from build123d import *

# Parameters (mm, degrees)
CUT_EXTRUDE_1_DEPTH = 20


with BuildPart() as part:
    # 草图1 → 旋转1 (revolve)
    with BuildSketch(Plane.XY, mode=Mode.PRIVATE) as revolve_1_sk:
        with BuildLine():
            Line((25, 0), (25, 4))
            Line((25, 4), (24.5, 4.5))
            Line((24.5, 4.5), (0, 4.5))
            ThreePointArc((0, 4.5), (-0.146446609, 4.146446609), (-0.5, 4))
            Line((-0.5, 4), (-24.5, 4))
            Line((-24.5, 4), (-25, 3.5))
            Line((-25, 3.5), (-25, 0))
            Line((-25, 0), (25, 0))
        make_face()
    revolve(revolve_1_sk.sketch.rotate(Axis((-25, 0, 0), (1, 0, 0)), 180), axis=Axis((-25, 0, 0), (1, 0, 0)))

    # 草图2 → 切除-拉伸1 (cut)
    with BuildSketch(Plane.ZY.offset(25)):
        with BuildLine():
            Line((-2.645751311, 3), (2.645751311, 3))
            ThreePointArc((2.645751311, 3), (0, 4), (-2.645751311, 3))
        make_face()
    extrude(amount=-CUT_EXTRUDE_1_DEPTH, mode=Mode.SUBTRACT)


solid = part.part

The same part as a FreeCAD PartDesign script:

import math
import FreeCAD as App
import Part
import Sketcher
Q = App.Units.Quantity

doc = App.newDocument("Part")
params = doc.addObject("Spreadsheet::Sheet", "Params")
for row, (alias, value) in enumerate([
    ("sketch1_radius", "0.5 mm"),
    ("sketch1_width", "24 mm"),
    ("sketch1_height", "4 mm"),
    ("revolution_angle", "360 deg"),
    ("sketch2_radius", "4 mm"),
    ("pocket1_length", "20 mm"),
], start=1):
    params.set(f"A{row}", alias)
    params.set(f"B{row}", "=" + value)
    params.setAlias(f"B{row}", alias)

body = doc.addObject("PartDesign::Body", "Body")

# Sketch on XY plane
sketch1 = body.newObject("Sketcher::SketchObject", "Sketch")
sketch1.AttachmentSupport = (doc.getObject("XY_Plane"), [""])
sketch1.MapMode = "FlatFace"
sketch1.addGeometry([
    Part.LineSegment(App.Vector(25, 0, 0), App.Vector(25, 4, 0)),  # 0
    Part.LineSegment(App.Vector(25, 4, 0), App.Vector(24.5, 4.5, 0)),  # 1
    Part.LineSegment(App.Vector(24.5, 4.5, 0), App.Vector(0, 4.5, 0)),  # 2
    Part.ArcOfCircle(Part.Circle(App.Vector(-0.5, 4.5, 0), App.Vector(0, 0, 1), 0.5), math.radians(-90), math.radians(0)),  # 3
    Part.LineSegment(App.Vector(-0.5, 4, 0), App.Vector(-24.5, 4, 0)),  # 4
    Part.LineSegment(App.Vector(-24.5, 4, 0), App.Vector(-25, 3.5, 0)),  # 5
    Part.LineSegment(App.Vector(-25, 3.5, 0), App.Vector(-25, 0, 0)),  # 6
    Part.LineSegment(App.Vector(-25, 0, 0), App.Vector(25, 0, 0)),  # 7
], False)
sketch1.addConstraint([
    Sketcher.Constraint("Coincident", 0, 2, 1, 1),
    Sketcher.Constraint("Coincident", 1, 2, 2, 1),
    Sketcher.Constraint("Coincident", 2, 2, 3, 2),
    Sketcher.Constraint("Tangent", 3, 1, 4, 1),
    Sketcher.Constraint("Coincident", 4, 2, 5, 1),
    Sketcher.Constraint("Coincident", 5, 2, 6, 1),
    Sketcher.Constraint("Coincident", 6, 2, 7, 1),
    Sketcher.Constraint("Coincident", 7, 2, 0, 1),
    Sketcher.Constraint("Vertical", 0),
    Sketcher.Constraint("Horizontal", 2),
    Sketcher.Constraint("Horizontal", 4),
    Sketcher.Constraint("Vertical", 6),
    Sketcher.Constraint("Horizontal", 7),
    Sketcher.Constraint("Symmetric", 6, 2, 7, 2, -1, 1),
    Sketcher.Constraint("PointOnObject", 2, 2, -2),
    Sketcher.Constraint("Perpendicular", 1, 5),
    Sketcher.Constraint("Horizontal", 3, 3, 1, 2),
    Sketcher.Constraint("Horizontal", 0, 2, 3, 1),
    Sketcher.Constraint("Equal", 1, 5),
    Sketcher.Constraint("Radius", 3, 0.5),
    Sketcher.Constraint("DistanceX", 4, 2, 4, 1, 24.0),
    Sketcher.Constraint("DistanceY", 0, 1, 0, 2, 4.0),
    Sketcher.Constraint("Angle", 1, Q("135 deg")),
])
sketch1.setExpression("Constraints[19]", "Params.sketch1_radius")
sketch1.setExpression("Constraints[20]", "Params.sketch1_width")
sketch1.setExpression("Constraints[21]", "Params.sketch1_height")
revolution = body.newObject("PartDesign::Revolution", "Revolution")
revolution.Profile = sketch1
revolution.ReferenceAxis = (sketch1, ["H_Axis"])
revolution.setExpression("Angle", "Params.revolution_angle")

# Sketch on YZ plane
sketch2 = body.newObject("Sketcher::SketchObject", "Sketch001")
sketch2.AttachmentSupport = (doc.getObject("YZ_Plane"), [""])
sketch2.MapMode = "FlatFace"
sketch2.AttachmentOffset = App.Placement(App.Vector(0, 0, -25), App.Rotation())
sketch2.addGeometry([
    Part.LineSegment(App.Vector(3, -2.6, 0), App.Vector(3, 2.6, 0)),
    Part.ArcOfCircle(Part.Circle(App.Vector(0, 0, 0), App.Vector(0, 0, 1), 4), math.radians(-41), math.radians(41)),
], False)
sketch2.addConstraint([
    Sketcher.Constraint("Coincident", 0, 1, 1, 1),
    Sketcher.Constraint("Coincident", 1, 2, 0, 2),
    Sketcher.Constraint("Vertical", 0),
    Sketcher.Constraint("Coincident", 1, 3, -1, 1),
    Sketcher.Constraint("Radius", 1, 4.0),
    Sketcher.Constraint("DistanceX", -1, 1, 0, 1, 3.0),
])
sketch2.setExpression("Constraints[4]", "Params.sketch2_radius")
pocket1 = body.newObject("PartDesign::Pocket", "Pocket")
pocket1.Profile = sketch2
pocket1.setExpression("Length", "Params.pocket1_length")
pocket1.Reversed = True

doc.recompute()
